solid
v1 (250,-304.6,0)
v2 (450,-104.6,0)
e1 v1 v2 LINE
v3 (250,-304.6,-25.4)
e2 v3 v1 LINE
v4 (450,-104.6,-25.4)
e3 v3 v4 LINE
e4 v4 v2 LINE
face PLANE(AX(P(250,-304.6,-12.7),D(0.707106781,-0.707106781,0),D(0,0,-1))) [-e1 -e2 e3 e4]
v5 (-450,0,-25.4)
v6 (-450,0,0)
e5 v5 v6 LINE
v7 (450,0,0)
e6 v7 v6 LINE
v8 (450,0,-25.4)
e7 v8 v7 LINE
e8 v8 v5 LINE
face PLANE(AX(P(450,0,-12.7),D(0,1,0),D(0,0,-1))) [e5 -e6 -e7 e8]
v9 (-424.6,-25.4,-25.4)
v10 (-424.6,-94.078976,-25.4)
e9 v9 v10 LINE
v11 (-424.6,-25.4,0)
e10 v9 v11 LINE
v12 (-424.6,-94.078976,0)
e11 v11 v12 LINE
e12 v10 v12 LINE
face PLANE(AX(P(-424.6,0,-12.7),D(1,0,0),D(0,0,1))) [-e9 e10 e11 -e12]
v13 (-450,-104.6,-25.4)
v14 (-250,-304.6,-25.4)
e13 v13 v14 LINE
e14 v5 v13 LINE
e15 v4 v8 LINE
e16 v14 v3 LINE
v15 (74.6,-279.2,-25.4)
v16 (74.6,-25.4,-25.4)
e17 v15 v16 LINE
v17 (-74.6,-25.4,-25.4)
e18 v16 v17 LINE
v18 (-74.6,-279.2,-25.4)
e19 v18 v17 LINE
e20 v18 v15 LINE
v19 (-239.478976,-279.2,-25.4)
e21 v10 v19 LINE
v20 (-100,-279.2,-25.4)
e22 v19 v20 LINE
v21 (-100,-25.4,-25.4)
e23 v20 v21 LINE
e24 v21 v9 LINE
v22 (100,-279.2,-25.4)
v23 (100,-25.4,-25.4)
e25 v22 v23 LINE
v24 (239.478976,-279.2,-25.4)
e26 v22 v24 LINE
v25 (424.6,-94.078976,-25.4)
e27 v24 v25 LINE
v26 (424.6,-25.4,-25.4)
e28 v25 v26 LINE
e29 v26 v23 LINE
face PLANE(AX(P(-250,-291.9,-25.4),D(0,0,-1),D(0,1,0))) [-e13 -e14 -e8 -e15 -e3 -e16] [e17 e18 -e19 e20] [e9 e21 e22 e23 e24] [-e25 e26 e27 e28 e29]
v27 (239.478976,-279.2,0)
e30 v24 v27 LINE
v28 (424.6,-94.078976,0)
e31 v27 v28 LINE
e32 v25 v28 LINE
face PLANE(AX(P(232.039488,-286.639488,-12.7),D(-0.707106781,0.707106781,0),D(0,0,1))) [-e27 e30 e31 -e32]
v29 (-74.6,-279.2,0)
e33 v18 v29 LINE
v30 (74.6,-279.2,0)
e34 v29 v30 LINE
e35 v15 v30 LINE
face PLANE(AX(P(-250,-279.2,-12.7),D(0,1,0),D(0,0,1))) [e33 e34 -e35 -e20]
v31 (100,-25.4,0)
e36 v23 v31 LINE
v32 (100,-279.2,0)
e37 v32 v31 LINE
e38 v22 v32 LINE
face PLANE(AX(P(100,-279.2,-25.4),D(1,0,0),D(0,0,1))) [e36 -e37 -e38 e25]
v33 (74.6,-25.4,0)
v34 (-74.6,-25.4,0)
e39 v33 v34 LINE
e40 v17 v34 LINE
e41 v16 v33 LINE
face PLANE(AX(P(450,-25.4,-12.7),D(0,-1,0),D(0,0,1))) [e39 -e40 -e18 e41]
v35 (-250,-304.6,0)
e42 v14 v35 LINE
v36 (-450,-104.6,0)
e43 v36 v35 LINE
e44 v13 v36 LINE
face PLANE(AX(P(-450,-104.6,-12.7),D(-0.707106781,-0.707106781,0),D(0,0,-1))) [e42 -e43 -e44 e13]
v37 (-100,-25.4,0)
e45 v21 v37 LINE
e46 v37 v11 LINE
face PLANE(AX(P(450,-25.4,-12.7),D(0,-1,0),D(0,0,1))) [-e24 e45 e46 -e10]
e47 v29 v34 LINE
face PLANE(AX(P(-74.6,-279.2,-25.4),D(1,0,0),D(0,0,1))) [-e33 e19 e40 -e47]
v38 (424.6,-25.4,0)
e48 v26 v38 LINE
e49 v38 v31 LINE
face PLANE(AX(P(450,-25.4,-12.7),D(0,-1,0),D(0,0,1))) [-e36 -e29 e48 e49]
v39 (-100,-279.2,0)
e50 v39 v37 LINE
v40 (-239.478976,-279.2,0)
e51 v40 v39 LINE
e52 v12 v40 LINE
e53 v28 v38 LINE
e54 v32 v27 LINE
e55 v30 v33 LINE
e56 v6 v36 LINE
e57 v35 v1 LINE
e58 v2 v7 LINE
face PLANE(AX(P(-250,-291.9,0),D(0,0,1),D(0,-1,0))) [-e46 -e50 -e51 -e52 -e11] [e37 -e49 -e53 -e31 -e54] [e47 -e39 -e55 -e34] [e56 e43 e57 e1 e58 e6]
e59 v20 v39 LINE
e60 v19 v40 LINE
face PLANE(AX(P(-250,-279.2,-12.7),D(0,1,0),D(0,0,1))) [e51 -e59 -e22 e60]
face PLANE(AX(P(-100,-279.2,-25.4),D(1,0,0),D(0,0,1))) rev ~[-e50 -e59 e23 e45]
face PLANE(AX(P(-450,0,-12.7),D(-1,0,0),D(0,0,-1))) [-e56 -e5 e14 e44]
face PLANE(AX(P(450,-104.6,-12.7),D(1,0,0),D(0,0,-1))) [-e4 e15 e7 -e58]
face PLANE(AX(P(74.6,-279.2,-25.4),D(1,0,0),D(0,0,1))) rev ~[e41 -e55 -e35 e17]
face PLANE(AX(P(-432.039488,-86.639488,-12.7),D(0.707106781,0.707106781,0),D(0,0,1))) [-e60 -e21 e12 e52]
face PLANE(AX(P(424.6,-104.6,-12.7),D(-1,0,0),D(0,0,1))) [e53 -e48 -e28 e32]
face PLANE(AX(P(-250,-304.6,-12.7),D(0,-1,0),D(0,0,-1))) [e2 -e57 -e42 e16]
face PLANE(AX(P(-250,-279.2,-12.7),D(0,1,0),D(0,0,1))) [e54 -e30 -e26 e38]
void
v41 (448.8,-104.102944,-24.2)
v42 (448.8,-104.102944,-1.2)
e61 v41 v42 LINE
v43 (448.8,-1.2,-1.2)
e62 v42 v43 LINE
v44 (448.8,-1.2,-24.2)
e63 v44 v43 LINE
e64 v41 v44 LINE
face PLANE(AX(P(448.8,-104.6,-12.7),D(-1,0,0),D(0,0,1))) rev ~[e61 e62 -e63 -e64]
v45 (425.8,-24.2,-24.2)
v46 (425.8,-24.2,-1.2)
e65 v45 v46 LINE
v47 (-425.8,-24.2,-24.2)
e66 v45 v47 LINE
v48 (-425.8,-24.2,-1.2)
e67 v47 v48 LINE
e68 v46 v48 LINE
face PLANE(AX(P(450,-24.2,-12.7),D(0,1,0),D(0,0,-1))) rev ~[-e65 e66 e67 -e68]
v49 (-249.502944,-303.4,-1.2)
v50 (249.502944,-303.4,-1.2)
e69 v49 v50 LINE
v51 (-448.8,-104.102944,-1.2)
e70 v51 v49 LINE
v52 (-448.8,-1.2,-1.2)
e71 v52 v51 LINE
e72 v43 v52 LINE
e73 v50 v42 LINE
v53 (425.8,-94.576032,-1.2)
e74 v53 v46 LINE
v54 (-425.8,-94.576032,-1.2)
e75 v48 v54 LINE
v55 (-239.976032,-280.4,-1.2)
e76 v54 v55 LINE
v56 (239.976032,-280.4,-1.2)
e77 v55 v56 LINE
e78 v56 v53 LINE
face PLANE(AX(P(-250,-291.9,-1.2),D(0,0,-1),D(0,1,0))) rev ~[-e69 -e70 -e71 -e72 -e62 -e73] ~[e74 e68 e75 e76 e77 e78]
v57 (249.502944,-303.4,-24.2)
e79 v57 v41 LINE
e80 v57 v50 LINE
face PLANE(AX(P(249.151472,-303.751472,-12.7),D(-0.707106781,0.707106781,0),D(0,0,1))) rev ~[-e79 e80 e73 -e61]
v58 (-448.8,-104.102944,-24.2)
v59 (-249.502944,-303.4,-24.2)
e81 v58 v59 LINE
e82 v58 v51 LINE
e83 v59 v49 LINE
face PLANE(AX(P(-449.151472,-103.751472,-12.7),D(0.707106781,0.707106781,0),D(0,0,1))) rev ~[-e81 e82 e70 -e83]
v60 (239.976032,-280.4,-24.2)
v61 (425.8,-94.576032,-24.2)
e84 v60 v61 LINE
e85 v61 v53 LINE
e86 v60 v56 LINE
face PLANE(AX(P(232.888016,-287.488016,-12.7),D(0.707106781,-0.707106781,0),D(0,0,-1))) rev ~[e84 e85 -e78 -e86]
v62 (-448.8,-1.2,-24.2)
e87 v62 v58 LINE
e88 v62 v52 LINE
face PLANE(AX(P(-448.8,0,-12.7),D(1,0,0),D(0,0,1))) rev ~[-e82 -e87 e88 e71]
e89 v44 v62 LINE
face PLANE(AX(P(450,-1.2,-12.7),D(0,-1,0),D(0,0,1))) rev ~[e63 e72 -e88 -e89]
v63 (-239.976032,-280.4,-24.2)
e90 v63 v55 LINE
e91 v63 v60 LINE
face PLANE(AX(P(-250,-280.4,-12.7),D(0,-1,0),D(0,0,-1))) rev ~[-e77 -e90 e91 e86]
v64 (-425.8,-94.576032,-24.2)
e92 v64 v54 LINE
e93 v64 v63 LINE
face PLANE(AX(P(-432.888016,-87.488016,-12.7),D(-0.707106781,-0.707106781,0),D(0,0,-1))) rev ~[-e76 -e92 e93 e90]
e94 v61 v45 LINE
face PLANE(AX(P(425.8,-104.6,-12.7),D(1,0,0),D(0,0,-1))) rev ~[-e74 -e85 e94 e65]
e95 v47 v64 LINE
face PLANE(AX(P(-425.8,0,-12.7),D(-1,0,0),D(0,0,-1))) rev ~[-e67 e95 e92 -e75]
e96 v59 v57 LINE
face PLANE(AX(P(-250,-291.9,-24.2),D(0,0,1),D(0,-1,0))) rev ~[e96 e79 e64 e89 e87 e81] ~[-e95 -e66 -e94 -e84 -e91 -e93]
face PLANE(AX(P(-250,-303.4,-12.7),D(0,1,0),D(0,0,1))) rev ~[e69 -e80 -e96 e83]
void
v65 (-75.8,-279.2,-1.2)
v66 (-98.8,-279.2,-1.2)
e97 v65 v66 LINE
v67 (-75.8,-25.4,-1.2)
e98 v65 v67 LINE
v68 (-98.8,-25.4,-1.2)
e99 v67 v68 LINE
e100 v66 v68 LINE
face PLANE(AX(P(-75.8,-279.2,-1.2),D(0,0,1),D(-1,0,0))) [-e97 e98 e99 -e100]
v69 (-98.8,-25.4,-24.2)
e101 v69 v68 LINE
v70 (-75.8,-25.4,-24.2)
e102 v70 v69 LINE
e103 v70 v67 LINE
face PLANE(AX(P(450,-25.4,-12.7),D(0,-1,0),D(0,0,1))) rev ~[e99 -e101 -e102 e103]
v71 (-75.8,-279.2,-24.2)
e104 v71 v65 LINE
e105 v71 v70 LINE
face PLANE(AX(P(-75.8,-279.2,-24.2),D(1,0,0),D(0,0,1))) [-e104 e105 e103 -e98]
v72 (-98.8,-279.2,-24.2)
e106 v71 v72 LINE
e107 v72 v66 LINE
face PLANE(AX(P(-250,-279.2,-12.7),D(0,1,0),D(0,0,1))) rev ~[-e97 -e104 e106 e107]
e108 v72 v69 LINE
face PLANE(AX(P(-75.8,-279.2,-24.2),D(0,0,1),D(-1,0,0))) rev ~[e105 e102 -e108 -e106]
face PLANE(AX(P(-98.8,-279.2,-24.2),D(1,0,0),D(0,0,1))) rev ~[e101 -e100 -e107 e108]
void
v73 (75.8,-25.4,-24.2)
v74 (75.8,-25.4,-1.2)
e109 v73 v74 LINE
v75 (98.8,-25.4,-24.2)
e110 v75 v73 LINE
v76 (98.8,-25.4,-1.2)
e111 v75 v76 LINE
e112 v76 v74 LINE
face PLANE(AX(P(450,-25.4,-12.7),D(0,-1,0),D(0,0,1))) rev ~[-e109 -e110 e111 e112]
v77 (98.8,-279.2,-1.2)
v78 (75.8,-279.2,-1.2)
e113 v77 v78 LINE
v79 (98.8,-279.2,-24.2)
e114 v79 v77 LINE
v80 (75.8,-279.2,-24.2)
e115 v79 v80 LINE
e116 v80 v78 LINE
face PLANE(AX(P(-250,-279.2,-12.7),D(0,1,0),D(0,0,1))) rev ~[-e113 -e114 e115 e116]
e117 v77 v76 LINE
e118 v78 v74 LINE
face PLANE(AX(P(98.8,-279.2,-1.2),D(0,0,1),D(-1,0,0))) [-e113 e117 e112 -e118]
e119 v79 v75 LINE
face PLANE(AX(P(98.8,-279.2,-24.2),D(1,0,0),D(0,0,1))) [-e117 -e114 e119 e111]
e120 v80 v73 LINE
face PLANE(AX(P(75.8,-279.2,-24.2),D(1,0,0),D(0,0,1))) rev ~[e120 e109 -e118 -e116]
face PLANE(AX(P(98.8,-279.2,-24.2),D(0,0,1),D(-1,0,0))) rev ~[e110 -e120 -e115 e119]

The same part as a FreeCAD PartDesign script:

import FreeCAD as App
import Part
import Sketcher
Q = App.Units.Quantity


def add_polygon(sketch, points):
    """Adds a closed chain of lines whose ends are joined by coincident constraints."""
    first, n = sketch.GeometryCount, len(points)
    for a, b in zip(points, points[1:] + points[:1]):
        sketch.addGeometry(Part.LineSegment(App.Vector(*a, 0), App.Vector(*b, 0)), False)
    for i in range(n):
        sketch.addConstraint(Sketcher.Constraint("Coincident", first + i, 2, first + (i + 1) % n, 1))

doc = App.newDocument("Part")
params = doc.addObject("Spreadsheet::Sheet", "Params")
for row, (alias, value) in enumerate([
    ("sketch1_width", "23 mm"),
    ("sketch1_width2", "25.4 mm"),
    ("sketch2_width", "500 mm"),
    ("sketch2_width2", "900 mm"),
    ("sketch2_height", "104.6 mm"),
    ("sketch3_width", "23 mm"),
    ("sketch3_width2", "25.4 mm"),
    ("pad1_length", "253.8 mm"),
], start=1):
    params.set(f"A{row}", alias)
    params.set(f"B{row}", "=" + value)
    params.setAlias(f"B{row}", alias)

body = doc.addObject("PartDesign::Body", "Body")

sketch1 = body.newObject("Sketcher::SketchObject", "Sketch")
sketch1.AttachmentSupport = (doc.getObject("YZ_Plane"), [""])
sketch1.MapMode = "FlatFace"
add_polygon(sketch1, [(-279, 0), (-305, 0), (-305, -25), (-279, -25)])
add_polygon(sketch1, [(-303, -24), (-303, -1), (-280, -1), (-280, -24)])
sketch1.addConstraint([
    Sketcher.Constraint("Horizontal", 0),
    Sketcher.Constraint("Vertical", 1),
    Sketcher.Constraint("Horizontal", 2),
    Sketcher.Constraint("Vertical", 3),
    Sketcher.Constraint("Vertical", 4),
    Sketcher.Constraint("Horizontal", 5),
    Sketcher.Constraint("Vertical", 6),
    Sketcher.Constraint("Horizontal", 7),
    Sketcher.Constraint("PointOnObject", 0, 2, -1),
    Sketcher.Constraint("Equal", 2, 1),
    Sketcher.Constraint("Equal", 7, 4),
    Sketcher.Constraint("DistanceX", 5, 1, 5, 2, Q("23 mm")),
    Sketcher.Constraint("DistanceX", 0, 2, 0, 1, Q("25.4 mm")),
    Sketcher.Constraint("DistanceX", 0, 2, -1, 1, Q("304.6 mm")),
    Sketcher.Constraint("DistanceX", 4, 2, -1, 1, Q("303.4 mm")),
    Sketcher.Constraint("DistanceY", 4, 2, -1, 1, Q("1.2 mm")),
])
sketch1.setExpression("Constraints[19]", "Params.sketch1_width")
sketch1.setExpression("Constraints[20]", "Params.sketch1_width2")

sketch2 = body.newObject("Sketcher::SketchObject", "Sketch001")
sketch2.AttachmentSupport = (doc.getObject("XY_Plane"), [""])
sketch2.MapMode = "FlatFace"
add_polygon(sketch2, [(-250, -305), (250, -305), (450, -105), (450, 0), (-450, 0), (-450, -105)])
sketch2.addConstraint([
    Sketcher.Constraint("Horizontal", 0),
    Sketcher.Constraint("Vertical", 2),
    Sketcher.Constraint("Horizontal", 3),
    Sketcher.Constraint("Vertical", 4),
    Sketcher.Constraint("Symmetric", 2, 2, 3, 2, -1, 1),
    Sketcher.Constraint("Perpendicular", 1, 5),
    Sketcher.Constraint("Horizontal", 1, 2, 4, 2),
    Sketcher.Constraint("Equal", 1, 5),
    Sketcher.Constraint("DistanceX", 0, 1, 0, 2, Q("500 mm")),
    Sketcher.Constraint("DistanceX", 3, 2, 3, 1, Q("900 mm")),
    Sketcher.Constraint("DistanceY", 2, 1, 2, 2, Q("104.6 mm")),
])
sketch2.setExpression("Constraints[14]", "Params.sketch2_width")
sketch2.setExpression("Constraints[15]", "Params.sketch2_width2")
sketch2.setExpression("Constraints[16]", "Params.sketch2_height")
doc.recompute()

additivepipe = body.newObject("PartDesign::AdditivePipe", "AdditivePipe")
additivepipe.Profile = sketch1
additivepipe.Spine = (sketch2, ["Edge1", "Edge2", "Edge3", "Edge4", "Edge5", "Edge6"])
additivepipe.Transition = "Right corner"

sketch3 = body.newObject("Sketcher::SketchObject", "Sketch002")
sketch3.AttachmentSupport = (doc.getObject("XZ_Plane"), [""])
sketch3.MapMode = "FlatFace"
sketch3.AttachmentOffset = App.Placement(App.Vector(0, 0, 279.2), App.Rotation())
add_polygon(sketch3, [(100, 0), (100, -25), (75, -25), (75, 0)])
add_polygon(sketch3, [(76, -24), (99, -24), (99, -1), (76, -1)])
add_polygon(sketch3, [(-75, 0), (-75, -25), (-100, -25), (-100, 0)])
add_polygon(sketch3, [(-99, -24), (-76, -24), (-76, -1), (-99, -1)])
sketch3.addConstraint([
    Sketcher.Constraint("Vertical", 0),
    Sketcher.Constraint("Horizontal", 1),
    Sketcher.Constraint("Vertical", 2),
    Sketcher.Constraint("Horizontal", 3),
    Sketcher.Constraint("Horizontal", 4),
    Sketcher.Constraint("Vertical", 5),
    Sketcher.Constraint("Horizontal", 6),
    Sketcher.Constraint("Vertical", 7),
    Sketcher.Constraint("Vertical", 8),
    Sketcher.Constraint("Horizontal", 9),
    Sketcher.Constraint("Vertical", 10),
    Sketcher.Constraint("Horizontal", 11),
    Sketcher.Constraint("Horizontal", 12),
    Sketcher.Constraint("Vertical", 13),
    Sketcher.Constraint("Horizontal", 14),
    Sketcher.Constraint("Vertical", 15),
    Sketcher.Constraint("Symmetric", 3, 2, 10, 2, -1, 1),
    Sketcher.Constraint("Symmetric", 1, 2, 8, 2, -2),
    Sketcher.Constraint("Symmetric", 7, 2, 12, 2, -2),
    Sketcher.Constraint("Symmetric", 5, 2, 14, 2, -2),
    Sketcher.Constraint("PointOnObject", 2, 2, -1),
    Sketcher.Constraint("Equal", 11, 0),
    Sketcher.Constraint("Equal", 14, 5),
    Sketcher.Constraint("DistanceX", 4, 1, 4, 2, Q("23 mm")),
    Sketcher.Constraint("DistanceX", 1, 2, 1, 1, Q("25.4 mm")),
    Sketcher.Constraint("DistanceX", -1, 1, 0, 2, Q("100 mm")),
    Sketcher.Constraint("DistanceX", -1, 1, 4, 2, Q("98.8 mm")),
    Sketcher.Constraint("DistanceY", 4, 2, -1, 1, Q("24.2 mm")),
])
sketch3.setExpression("Constraints[39]", "Params.sketch3_width")
sketch3.setExpression("Constraints[40]", "Params.sketch3_width2")
pad1 = body.newObject("PartDesign::Pad", "Pad")
pad1.Profile = sketch3
pad1.setExpression("Length", "Params.pad1_length")
pad1.Reversed = True

doc.recompute()
